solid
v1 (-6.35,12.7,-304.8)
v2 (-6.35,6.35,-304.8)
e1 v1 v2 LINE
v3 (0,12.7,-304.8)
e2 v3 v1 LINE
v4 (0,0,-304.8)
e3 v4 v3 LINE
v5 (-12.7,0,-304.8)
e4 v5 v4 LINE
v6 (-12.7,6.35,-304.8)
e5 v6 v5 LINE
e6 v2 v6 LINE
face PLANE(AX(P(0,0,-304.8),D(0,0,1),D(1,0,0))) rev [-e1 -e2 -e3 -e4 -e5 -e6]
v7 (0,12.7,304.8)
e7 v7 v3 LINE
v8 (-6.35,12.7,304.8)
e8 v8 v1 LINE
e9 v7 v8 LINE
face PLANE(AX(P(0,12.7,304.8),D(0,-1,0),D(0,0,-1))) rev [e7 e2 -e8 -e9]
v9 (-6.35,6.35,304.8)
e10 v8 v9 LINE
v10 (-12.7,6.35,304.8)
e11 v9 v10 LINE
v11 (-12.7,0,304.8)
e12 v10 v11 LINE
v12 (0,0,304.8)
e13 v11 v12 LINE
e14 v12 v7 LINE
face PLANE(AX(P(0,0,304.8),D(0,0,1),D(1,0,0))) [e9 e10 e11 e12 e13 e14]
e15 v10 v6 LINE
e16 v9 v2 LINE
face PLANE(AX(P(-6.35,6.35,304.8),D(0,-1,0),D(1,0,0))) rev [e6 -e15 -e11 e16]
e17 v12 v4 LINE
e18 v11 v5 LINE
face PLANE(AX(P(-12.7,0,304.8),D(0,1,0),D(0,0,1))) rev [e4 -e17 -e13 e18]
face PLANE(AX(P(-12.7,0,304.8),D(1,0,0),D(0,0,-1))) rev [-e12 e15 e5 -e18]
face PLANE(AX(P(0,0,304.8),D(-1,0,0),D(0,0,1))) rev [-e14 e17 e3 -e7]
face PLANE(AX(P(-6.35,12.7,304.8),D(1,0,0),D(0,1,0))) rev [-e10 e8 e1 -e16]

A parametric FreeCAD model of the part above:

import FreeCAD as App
import Part
import Sketcher

V = App.Vector
Q = App.Units.Quantity

doc = App.newDocument("Part")
body = doc.addObject("PartDesign::Body", "Body")

# Sketch on XY plane
sketch1 = body.newObject("Sketcher::SketchObject", "Sketch")
sketch1.AttachmentSupport = (doc.getObject("XY_Plane"), [""])
sketch1.MapMode = "FlatFace"
sketch1.addGeometry(Part.LineSegment(V(-13, 0, 0), V(0, 0, 0)), False)
sketch1.addGeometry(Part.LineSegment(V(0, 0, 0), V(0, 13, 0)), False)
sketch1.addGeometry(Part.LineSegment(V(0, 13, 0), V(-6, 13, 0)), False)
sketch1.addGeometry(Part.LineSegment(V(-6, 13, 0), V(-6, 6, 0)), False)
sketch1.addGeometry(Part.LineSegment(V(-6, 6, 0), V(-13, 6, 0)), False)
sketch1.addGeometry(Part.LineSegment(V(-13, 6, 0), V(-13, 0, 0)), False)
sketch1.addConstraint(Sketcher.Constraint("Coincident", 0, 2, 1, 1))
sketch1.addConstraint(Sketcher.Constraint("Coincident", 1, 2, 2, 1))
sketch1.addConstraint(Sketcher.Constraint("Coincident", 2, 2, 3, 1))
sketch1.addConstraint(Sketcher.Constraint("Coincident", 3, 2, 4, 1))
sketch1.addConstraint(Sketcher.Constraint("Coincident", 4, 2, 5, 1))
sketch1.addConstraint(Sketcher.Constraint("Coincident", 5, 2, 0, 1))
sketch1.addConstraint(Sketcher.Constraint("Horizontal", 0))
sketch1.addConstraint(Sketcher.Constraint("Vertical", 1))
sketch1.addConstraint(Sketcher.Constraint("Horizontal", 2))
sketch1.addConstraint(Sketcher.Constraint("Vertical", 3))
sketch1.addConstraint(Sketcher.Constraint("Horizontal", 4))
sketch1.addConstraint(Sketcher.Constraint("Vertical", 5))
sketch1.addConstraint(Sketcher.Constraint("Coincident", 0, 2, -1, 1))
sketch1.addConstraint(Sketcher.Constraint("Equal", 2, 4))
sketch1.addConstraint(Sketcher.Constraint("Equal", 0, 1))
sketch1.addConstraint(Sketcher.Constraint("Equal", 4, 3))
sketch1.addConstraint(Sketcher.Constraint("DistanceX", 0, 1, 0, 2, Q("0.5 in")))
pad1 = body.newObject("PartDesign::Pad", "Pad")
pad1.Profile = sketch1
pad1.Type = "TwoLengths"
pad1.Length = Q("12 in")
pad1.Length2 = Q("12 in")

doc.recompute()
